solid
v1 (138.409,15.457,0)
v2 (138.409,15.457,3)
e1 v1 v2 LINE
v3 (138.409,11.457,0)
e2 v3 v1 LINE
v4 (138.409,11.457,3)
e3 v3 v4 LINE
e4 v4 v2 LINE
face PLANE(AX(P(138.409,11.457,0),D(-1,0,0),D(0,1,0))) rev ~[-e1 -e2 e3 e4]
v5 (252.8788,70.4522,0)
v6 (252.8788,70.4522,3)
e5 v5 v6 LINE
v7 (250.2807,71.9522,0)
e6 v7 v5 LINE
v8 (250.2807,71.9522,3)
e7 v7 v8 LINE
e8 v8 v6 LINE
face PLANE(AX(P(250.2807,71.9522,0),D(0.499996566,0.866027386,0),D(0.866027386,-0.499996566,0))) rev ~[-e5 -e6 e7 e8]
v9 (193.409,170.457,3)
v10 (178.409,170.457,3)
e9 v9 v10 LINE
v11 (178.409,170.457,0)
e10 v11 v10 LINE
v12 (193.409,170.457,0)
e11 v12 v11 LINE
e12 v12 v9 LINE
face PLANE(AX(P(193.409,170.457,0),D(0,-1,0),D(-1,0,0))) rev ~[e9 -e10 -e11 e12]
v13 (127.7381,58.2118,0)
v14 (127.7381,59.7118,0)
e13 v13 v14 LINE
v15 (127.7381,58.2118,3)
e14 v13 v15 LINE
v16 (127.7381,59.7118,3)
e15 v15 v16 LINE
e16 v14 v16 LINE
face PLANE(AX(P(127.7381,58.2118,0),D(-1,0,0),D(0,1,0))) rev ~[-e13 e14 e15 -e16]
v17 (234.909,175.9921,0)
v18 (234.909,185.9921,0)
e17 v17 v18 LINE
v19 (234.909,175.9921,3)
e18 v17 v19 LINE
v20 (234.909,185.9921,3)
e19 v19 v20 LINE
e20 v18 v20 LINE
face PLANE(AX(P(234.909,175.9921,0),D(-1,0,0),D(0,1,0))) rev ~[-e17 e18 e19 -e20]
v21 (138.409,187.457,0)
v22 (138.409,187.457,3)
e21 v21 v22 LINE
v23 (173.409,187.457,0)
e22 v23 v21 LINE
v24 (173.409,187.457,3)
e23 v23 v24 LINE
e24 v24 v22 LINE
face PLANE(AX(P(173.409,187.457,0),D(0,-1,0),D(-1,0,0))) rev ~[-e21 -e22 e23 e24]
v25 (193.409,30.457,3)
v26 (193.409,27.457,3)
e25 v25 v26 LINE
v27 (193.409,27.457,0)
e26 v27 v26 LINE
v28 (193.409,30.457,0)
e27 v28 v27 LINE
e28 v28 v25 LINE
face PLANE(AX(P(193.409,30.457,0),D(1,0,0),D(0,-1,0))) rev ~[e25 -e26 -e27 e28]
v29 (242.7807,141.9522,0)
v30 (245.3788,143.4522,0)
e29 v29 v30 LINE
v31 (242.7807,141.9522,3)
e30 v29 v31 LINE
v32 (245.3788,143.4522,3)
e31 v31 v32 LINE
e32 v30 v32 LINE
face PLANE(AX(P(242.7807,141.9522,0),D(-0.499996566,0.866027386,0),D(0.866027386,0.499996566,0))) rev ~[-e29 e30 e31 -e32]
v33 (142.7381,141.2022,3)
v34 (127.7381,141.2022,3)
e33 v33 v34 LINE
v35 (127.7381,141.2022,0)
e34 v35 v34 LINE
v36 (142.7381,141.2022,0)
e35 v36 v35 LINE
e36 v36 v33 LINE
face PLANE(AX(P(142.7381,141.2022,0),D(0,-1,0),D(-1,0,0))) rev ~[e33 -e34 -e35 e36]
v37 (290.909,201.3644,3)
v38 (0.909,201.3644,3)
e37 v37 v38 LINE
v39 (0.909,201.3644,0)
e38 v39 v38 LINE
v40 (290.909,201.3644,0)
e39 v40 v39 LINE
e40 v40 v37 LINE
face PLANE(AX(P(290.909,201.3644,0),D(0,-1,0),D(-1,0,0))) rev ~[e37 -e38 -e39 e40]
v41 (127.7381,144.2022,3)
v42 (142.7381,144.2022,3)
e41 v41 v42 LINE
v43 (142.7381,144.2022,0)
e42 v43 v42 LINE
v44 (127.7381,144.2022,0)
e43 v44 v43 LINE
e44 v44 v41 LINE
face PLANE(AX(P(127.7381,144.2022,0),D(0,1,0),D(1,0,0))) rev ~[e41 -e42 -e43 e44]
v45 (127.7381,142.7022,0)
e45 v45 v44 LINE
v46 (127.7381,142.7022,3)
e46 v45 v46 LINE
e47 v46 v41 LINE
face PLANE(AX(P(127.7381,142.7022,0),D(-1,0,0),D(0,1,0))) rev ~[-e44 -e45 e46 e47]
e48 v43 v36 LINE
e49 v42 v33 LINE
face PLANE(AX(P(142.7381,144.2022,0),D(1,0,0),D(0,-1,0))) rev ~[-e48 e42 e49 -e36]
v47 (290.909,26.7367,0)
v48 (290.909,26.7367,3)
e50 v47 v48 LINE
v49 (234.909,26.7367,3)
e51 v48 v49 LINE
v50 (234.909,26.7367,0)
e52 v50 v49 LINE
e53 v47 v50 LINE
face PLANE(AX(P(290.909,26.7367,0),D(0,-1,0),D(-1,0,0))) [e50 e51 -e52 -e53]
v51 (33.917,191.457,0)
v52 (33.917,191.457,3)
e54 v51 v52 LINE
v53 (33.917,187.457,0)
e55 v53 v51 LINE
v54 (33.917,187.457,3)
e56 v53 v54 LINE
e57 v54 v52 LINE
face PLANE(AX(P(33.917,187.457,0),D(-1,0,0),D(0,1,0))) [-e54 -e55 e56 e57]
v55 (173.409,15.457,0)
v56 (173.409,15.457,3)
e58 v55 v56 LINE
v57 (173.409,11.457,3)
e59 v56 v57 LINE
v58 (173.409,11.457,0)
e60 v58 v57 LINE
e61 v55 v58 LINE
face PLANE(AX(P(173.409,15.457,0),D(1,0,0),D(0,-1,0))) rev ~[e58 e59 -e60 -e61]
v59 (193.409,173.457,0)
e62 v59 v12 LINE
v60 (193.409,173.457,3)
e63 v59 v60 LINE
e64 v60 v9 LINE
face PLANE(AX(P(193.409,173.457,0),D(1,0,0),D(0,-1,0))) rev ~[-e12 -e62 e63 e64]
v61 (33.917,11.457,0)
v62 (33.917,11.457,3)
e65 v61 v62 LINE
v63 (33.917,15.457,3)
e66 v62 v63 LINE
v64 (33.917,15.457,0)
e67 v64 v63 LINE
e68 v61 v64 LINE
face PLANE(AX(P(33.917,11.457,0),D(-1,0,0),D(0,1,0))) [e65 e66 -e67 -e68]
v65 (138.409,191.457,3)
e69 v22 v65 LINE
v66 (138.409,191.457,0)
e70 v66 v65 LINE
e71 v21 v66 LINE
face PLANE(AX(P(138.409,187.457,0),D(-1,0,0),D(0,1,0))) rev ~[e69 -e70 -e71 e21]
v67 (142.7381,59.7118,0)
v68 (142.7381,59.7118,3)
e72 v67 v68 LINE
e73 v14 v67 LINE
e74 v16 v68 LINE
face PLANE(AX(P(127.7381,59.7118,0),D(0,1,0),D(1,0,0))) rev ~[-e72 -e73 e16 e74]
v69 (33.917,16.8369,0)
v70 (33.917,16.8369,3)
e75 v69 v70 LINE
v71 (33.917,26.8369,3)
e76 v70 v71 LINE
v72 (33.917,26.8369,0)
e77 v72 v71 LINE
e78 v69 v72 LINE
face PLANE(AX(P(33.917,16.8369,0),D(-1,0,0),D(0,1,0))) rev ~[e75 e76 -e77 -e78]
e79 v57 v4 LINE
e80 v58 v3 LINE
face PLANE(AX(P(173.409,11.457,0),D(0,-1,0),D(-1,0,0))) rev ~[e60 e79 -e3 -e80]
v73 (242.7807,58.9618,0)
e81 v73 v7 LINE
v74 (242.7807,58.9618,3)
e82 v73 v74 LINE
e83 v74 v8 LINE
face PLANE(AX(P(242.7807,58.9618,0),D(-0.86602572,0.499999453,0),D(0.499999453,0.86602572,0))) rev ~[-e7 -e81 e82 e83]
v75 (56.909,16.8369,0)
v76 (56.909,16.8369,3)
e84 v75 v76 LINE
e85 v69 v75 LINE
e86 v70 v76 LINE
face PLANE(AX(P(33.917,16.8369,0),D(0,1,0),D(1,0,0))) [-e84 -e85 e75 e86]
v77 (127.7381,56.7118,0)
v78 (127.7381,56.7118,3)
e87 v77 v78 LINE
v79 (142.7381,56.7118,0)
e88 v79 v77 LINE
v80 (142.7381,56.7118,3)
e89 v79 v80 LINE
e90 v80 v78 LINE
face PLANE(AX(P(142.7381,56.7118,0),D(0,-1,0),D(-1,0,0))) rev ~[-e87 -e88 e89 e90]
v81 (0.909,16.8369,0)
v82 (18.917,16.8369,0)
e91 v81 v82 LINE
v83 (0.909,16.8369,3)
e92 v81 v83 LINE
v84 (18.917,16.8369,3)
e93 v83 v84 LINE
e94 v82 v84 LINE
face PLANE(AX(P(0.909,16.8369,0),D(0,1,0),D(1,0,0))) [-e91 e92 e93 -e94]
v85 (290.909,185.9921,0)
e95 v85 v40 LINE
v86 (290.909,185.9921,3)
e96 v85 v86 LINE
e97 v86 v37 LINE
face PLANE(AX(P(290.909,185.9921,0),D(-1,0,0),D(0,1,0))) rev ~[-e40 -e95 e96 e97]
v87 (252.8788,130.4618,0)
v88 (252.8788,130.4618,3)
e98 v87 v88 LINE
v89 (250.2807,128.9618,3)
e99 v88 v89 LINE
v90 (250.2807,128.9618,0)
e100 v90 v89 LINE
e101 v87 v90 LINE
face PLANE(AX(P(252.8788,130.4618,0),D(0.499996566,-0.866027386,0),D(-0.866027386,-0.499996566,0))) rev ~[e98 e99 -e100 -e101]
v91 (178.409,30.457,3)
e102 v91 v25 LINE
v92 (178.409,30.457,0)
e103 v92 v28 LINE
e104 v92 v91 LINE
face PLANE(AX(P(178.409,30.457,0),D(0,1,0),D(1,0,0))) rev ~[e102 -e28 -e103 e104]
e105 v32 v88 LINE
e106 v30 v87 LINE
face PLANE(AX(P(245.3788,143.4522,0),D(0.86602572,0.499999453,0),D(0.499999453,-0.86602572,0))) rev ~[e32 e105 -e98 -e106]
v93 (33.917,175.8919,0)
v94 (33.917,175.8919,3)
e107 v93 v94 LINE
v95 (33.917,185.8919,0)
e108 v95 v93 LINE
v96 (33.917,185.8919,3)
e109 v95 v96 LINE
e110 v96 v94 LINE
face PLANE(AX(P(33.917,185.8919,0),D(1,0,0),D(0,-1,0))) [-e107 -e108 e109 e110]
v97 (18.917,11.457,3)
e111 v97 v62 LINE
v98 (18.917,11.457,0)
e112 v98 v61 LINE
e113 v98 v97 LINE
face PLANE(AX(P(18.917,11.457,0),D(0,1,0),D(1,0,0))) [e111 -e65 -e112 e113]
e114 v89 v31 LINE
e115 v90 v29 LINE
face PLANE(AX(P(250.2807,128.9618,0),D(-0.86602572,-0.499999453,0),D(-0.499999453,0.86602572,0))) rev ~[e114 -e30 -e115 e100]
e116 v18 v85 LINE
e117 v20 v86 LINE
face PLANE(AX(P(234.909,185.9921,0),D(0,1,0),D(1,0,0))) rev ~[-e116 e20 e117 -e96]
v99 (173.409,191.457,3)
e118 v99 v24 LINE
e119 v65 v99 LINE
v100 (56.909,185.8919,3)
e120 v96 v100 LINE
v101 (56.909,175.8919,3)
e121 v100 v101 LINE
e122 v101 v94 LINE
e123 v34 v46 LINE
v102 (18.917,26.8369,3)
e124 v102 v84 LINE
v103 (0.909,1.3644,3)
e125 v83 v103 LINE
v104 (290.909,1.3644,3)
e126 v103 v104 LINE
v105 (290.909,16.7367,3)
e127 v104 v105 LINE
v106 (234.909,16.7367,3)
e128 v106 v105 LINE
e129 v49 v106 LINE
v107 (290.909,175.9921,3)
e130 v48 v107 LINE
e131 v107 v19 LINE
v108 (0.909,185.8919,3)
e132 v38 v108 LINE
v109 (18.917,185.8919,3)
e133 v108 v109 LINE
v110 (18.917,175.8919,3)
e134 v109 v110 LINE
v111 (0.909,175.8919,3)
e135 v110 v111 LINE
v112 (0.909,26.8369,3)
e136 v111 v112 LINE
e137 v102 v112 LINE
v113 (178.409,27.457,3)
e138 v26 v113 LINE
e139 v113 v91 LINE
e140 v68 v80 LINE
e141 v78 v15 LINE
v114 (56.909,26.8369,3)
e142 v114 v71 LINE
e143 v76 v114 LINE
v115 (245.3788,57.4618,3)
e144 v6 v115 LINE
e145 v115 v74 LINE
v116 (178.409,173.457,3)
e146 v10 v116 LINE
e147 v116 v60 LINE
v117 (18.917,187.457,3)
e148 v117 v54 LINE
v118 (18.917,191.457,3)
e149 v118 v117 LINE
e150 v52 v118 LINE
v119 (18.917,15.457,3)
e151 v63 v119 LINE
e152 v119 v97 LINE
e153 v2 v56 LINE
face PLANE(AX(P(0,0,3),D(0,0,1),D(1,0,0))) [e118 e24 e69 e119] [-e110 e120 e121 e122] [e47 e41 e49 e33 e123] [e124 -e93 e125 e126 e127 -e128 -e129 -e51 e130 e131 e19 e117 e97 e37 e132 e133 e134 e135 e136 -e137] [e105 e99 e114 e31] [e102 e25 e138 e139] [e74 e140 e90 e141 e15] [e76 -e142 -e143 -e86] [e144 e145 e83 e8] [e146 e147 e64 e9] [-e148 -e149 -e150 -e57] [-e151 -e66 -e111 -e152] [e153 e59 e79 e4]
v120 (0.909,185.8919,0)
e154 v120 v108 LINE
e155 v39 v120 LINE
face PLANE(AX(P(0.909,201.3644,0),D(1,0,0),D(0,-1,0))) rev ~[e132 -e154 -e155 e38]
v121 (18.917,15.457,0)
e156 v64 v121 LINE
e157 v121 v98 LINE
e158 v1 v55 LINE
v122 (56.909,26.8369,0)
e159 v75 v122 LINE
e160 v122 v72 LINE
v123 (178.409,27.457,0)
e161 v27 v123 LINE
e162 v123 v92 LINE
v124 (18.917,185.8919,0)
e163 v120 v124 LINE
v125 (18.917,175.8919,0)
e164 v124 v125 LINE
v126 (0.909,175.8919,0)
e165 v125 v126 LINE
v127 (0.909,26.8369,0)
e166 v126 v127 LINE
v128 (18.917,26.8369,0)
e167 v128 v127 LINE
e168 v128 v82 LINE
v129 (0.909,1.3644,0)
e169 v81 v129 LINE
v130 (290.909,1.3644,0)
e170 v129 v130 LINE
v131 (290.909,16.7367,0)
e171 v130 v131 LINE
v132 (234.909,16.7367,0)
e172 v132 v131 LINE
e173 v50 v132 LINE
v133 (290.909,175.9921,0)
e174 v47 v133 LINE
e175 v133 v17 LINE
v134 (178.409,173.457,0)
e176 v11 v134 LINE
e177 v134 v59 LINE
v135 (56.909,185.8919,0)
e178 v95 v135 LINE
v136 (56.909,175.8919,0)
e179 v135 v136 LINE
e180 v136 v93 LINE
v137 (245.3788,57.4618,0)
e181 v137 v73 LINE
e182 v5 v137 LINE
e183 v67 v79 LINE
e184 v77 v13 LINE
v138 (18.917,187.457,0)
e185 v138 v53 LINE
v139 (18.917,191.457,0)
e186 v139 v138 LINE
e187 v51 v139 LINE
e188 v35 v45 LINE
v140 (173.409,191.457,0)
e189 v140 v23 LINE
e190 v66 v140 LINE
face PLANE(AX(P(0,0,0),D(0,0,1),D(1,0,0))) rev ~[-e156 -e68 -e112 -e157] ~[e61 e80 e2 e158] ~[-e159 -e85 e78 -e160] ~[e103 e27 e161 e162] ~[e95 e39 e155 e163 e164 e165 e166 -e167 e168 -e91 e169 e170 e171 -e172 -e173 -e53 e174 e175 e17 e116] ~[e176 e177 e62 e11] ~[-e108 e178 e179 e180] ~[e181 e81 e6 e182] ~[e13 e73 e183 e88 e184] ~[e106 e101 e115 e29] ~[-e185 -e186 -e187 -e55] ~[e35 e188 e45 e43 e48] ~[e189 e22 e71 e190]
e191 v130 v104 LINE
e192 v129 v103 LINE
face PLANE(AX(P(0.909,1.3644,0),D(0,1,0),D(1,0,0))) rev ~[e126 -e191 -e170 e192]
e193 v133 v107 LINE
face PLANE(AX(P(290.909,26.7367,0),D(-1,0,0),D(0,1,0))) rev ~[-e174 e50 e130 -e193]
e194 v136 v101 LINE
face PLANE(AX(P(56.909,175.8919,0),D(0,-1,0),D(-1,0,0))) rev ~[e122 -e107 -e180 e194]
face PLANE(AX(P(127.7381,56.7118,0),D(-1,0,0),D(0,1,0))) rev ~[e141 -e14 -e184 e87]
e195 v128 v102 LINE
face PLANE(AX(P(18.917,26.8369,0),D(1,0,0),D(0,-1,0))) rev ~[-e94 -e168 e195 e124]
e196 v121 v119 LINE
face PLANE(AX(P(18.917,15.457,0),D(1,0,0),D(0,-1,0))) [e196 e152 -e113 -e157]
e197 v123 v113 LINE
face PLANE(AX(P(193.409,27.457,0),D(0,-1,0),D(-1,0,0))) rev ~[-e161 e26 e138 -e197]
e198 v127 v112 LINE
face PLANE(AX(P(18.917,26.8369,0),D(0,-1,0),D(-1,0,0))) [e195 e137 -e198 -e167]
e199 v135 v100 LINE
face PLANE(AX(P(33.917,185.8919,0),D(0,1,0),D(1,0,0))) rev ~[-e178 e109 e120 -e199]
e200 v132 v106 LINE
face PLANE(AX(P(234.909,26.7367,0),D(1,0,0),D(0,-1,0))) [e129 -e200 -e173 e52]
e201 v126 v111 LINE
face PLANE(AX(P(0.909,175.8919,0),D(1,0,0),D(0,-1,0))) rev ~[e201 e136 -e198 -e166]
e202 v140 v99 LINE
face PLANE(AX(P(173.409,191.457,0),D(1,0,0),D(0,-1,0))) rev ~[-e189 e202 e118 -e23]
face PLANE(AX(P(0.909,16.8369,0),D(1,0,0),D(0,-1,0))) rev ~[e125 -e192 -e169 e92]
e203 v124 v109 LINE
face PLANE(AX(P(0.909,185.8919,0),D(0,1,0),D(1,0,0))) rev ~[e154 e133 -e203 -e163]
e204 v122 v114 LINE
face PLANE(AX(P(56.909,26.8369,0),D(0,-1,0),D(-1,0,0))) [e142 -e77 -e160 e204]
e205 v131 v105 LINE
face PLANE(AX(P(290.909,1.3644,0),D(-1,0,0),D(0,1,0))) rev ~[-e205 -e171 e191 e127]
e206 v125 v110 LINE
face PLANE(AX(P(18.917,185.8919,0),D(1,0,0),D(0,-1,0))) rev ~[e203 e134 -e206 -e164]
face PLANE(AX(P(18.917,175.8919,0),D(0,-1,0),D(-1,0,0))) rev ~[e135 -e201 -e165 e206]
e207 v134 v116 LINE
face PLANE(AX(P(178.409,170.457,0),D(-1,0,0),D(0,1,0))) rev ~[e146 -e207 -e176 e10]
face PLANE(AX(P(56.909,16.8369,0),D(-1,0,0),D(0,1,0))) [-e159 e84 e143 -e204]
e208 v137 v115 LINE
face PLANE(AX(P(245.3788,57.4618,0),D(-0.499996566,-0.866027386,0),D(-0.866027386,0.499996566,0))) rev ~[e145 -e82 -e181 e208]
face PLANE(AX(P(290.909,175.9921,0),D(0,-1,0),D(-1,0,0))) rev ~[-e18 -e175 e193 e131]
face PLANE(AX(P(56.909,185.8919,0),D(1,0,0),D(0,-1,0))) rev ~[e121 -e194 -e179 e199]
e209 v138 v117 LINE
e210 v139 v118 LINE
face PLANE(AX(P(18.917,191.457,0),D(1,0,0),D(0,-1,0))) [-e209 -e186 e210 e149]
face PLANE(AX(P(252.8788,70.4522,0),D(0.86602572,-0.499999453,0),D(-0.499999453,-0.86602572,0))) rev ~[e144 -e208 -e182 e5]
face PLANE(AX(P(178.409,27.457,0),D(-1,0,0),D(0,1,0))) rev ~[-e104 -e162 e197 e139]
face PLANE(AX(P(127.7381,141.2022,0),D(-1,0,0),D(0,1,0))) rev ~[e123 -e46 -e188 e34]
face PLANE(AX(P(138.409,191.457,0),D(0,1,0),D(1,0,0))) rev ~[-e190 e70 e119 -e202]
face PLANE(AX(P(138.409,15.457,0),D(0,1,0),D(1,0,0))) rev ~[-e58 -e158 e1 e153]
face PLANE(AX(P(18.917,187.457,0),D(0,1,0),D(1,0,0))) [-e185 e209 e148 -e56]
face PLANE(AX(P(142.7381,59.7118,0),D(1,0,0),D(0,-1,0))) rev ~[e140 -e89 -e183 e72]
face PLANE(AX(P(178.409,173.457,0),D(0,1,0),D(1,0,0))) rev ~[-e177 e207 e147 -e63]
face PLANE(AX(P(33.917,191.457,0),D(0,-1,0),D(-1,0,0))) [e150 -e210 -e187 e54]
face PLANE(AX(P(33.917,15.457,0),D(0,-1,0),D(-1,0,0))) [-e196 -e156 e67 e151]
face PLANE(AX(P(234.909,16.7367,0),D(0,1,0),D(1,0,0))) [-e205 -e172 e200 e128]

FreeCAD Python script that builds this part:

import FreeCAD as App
import Part
import Sketcher
from FreeCAD import Vector
Q = App.Units.Quantity


def add_polygon(sketch, points):
    """Adds a closed chain of lines whose ends are joined by coincident constraints."""
    first, n = sketch.GeometryCount, len(points)
    for a, b in zip(points, points[1:] + points[:1]):
        sketch.addGeometry(Part.LineSegment(App.Vector(*a, 0), App.Vector(*b, 0)), False)
    for i in range(n):
        sketch.addConstraint(Sketcher.Constraint("Coincident", first + i, 2, first + (i + 1) % n, 1))

doc = App.newDocument("Part")
params = doc.addObject("Spreadsheet::Sheet", "Params")
for row, (alias, value) in enumerate([
    ("sketch1_width", "15 mm"),
    ("sketch1_height", "3 mm"),
    ("sketch1_length", "3 mm"),
    ("sketch1_length2", "15 mm"),
    ("sketch1_width2", "290 mm"),
    ("pad1_length", "3 mm"),
], start=1):
    params.set(f"A{row}", alias)
    params.set(f"B{row}", "=" + value)
    params.setAlias(f"B{row}", alias)

body = doc.addObject("PartDesign::Body", "Body")

sketch1 = body.newObject("Sketcher::SketchObject", "Sketch")
sketch1.AttachmentSupport = (doc.getObject("XY_Plane"), [""])
sketch1.MapMode = "FlatFace"
add_polygon(sketch1, [(18.917, 16.8369), (0.909, 16.8369), (0.909, 1.3644), (290.909, 1.3644), (290.909, 16.7367), (234.909, 16.7367), (234.909, 26.7367), (290.909, 26.7367), (290.909, 175.9921), (234.909, 175.9921), (234.909, 185.9921), (290.909, 185.9921), (290.909, 201.3644), (0.909, 201.3644), (0.909, 185.8919), (18.917, 185.8919), (18.917, 175.8919), (0.909, 175.8919), (0.909, 26.8369), (18.917, 26.8369)])
add_polygon(sketch1, [(33.917, 15.457), (33.917, 11.457), (18.917, 11.457), (18.917, 15.457)])
add_polygon(sketch1, [(56.909, 26.8369), (56.909, 16.8369), (33.917, 16.8369), (33.917, 26.8369)])
add_polygon(sketch1, [(127.7381, 56.7118), (127.7381, 59.7118), (142.7381, 59.7118), (142.7381, 56.7118)])
add_polygon(sketch1, [(173.409, 15.457), (173.409, 11.457), (138.409, 11.457), (138.409, 15.457)])
add_polygon(sketch1, [(193.409, 30.457), (193.409, 27.457), (178.409, 27.457), (178.409, 30.457)])
add_polygon(sketch1, [(250.2807, 71.9522), (252.8788, 70.4522), (245.3788, 57.4618), (242.7807, 58.9618)])
add_polygon(sketch1, [(127.7381, 141.2022), (127.7381, 144.2022), (142.7381, 144.2022), (142.7381, 141.2022)])
add_polygon(sketch1, [(33.917, 187.457), (18.917, 187.457), (18.917, 191.457), (33.917, 191.457)])
add_polygon(sketch1, [(33.917, 185.8919), (56.909, 185.8919), (56.909, 175.8919), (33.917, 175.8919)])
add_polygon(sketch1, [(250.2807, 128.9618), (242.7807, 141.9522), (245.3788, 143.4522), (252.8788, 130.4618)])
add_polygon(sketch1, [(178.409, 170.457), (178.409, 173.457), (193.409, 173.457), (193.409, 170.457)])
add_polygon(sketch1, [(173.409, 187.457), (138.409, 187.457), (138.409, 191.457), (173.409, 191.457)])
sketch1.addConstraint([
    Sketcher.Constraint("Horizontal", 0),
    Sketcher.Constraint("Vertical", 1),
    Sketcher.Constraint("Horizontal", 2),
    Sketcher.Constraint("Vertical", 3),
    Sketcher.Constraint("Horizontal", 4),
    Sketcher.Constraint("Vertical", 5),
    Sketcher.Constraint("Horizontal", 6),
    Sketcher.Constraint("Vertical", 7),
    Sketcher.Constraint("Horizontal", 8),
    Sketcher.Constraint("Vertical", 9),
    Sketcher.Constraint("Horizontal", 10),
    Sketcher.Constraint("Vertical", 11),
    Sketcher.Constraint("Horizontal", 12),
    Sketcher.Constraint("Vertical", 13),
    Sketcher.Constraint("Horizontal", 14),
    Sketcher.Constraint("Vertical", 15),
    Sketcher.Constraint("Horizontal", 16),
    Sketcher.Constraint("Vertical", 17),
    Sketcher.Constraint("Horizontal", 18),
    Sketcher.Constraint("Vertical", 19),
    Sketcher.Constraint("Vertical", 20),
    Sketcher.Constraint("Horizontal", 21),
    Sketcher.Constraint("Vertical", 22),
    Sketcher.Constraint("Horizontal", 23),
    Sketcher.Constraint("Vertical", 24),
    Sketcher.Constraint("Horizontal", 25),
    Sketcher.Constraint("Vertical", 26),
    Sketcher.Constraint("Horizontal", 27),
    Sketcher.Constraint("Vertical", 28),
    Sketcher.Constraint("Horizontal", 29),
    Sketcher.Constraint("Vertical", 30),
    Sketcher.Constraint("Horizontal", 31),
    Sketcher.Constraint("Vertical", 32),
    Sketcher.Constraint("Horizontal", 33),
    Sketcher.Constraint("Vertical", 34),
    Sketcher.Constraint("Horizontal", 35),
    Sketcher.Constraint("Vertical", 36),
    Sketcher.Constraint("Horizontal", 37),
    Sketcher.Constraint("Vertical", 38),
    Sketcher.Constraint("Horizontal", 39),
    Sketcher.Constraint("Vertical", 44),
    Sketcher.Constraint("Horizontal", 45),
    Sketcher.Constraint("Vertical", 46),
    Sketcher.Constraint("Horizontal", 47),
    Sketcher.Constraint("Horizontal", 48),
    Sketcher.Constraint("Vertical", 49),
    Sketcher.Constraint("Horizontal", 50),
    Sketcher.Constraint("Vertical", 51),
    Sketcher.Constraint("Horizontal", 52),
    Sketcher.Constraint("Vertical", 53),
    Sketcher.Constraint("Horizontal", 54),
    Sketcher.Constraint("Vertical", 55),
    Sketcher.Constraint("Vertical", 60),
    Sketcher.Constraint("Horizontal", 61),
    Sketcher.Constraint("Vertical", 62),
    Sketcher.Constraint("Horizontal", 63),
    Sketcher.Constraint("Horizontal", 64),
    Sketcher.Constraint("Vertical", 65),
    Sketcher.Constraint("Horizontal", 66),
    Sketcher.Constraint("Vertical", 67),
    Sketcher.Constraint("Perpendicular", 40, 41),
    Sketcher.Constraint("Perpendicular", 41, 42),
    Sketcher.Constraint("Perpendicular", 42, 43),
    Sketcher.Constraint("Perpendicular", 56, 57),
    Sketcher.Constraint("Perpendicular", 57, 58),
    Sketcher.Constraint("Perpendicular", 58, 59),
    Sketcher.Constraint("Horizontal", 19, 2, 24, 2),
    Sketcher.Constraint("Horizontal", 18, 2, 26, 2),
    Sketcher.Constraint("Horizontal", 21, 2, 32, 2),
    Sketcher.Constraint("Horizontal", 23, 2, 34, 2),
    Sketcher.Constraint("Horizontal", 14, 2, 52, 2),
    Sketcher.Constraint("Horizontal", 16, 2, 53, 2),
    Sketcher.Constraint("Horizontal", 51, 2, 64, 2),
    Sketcher.Constraint("Horizontal", 50, 2, 65, 2),
    Sketcher.Constraint("Vertical", 3, 2, 6, 2),
    Sketcher.Constraint("Vertical", 5, 2, 8, 2),
    Sketcher.Constraint("Vertical", 7, 2, 10, 2),
    Sketcher.Constraint("Vertical", 1, 2, 12, 2),
    Sketcher.Constraint("Vertical", 13, 2, 16, 2),
    Sketcher.Constraint("Vertical", 15, 2, 18, 2),
    Sketcher.Constraint("Vertical", 19, 2, 21, 2),
    Sketcher.Constraint("Vertical", 23, 2, 25, 2),
    Sketcher.Constraint("Vertical", 31, 2, 44, 2),
    Sketcher.Constraint("Vertical", 30, 2, 45, 2),
    Sketcher.Constraint("Vertical", 22, 2, 48, 2),
    Sketcher.Constraint("Vertical", 26, 2, 50, 2),
    Sketcher.Constraint("Vertical", 27, 2, 52, 2),
    Sketcher.Constraint("Vertical", 51, 2, 54, 2),
    Sketcher.Constraint("Vertical", 42, 2, 56, 2),
    Sketcher.Constraint("Vertical", 41, 2, 57, 2),
    Sketcher.Constraint("Vertical", 40, 2, 58, 2),
    Sketcher.Constraint("Vertical", 38, 2, 60, 2),
    Sketcher.Constraint("Vertical", 39, 2, 61, 2),
    Sketcher.Constraint("Vertical", 34, 2, 64, 2),
    Sketcher.Constraint("Vertical", 35, 2, 66, 2),
    Sketcher.Constraint("Equal", 23, 29),
    Sketcher.Constraint("Equal", 31, 37),
    Sketcher.Constraint("Equal", 5, 9),
    Sketcher.Constraint("Equal", 3, 11),
    Sketcher.Constraint("Equal", 1, 13),
    Sketcher.Constraint("Equal", 9, 15),
    Sketcher.Constraint("Equal", 15, 19),
    Sketcher.Constraint("Equal", 30, 36),
    Sketcher.Constraint("Equal", 38, 44),
    Sketcher.Constraint("Equal", 34, 49),
    Sketcher.Constraint("Equal", 46, 60),
    Sketcher.Constraint("Equal", 43, 56),
    Sketcher.Constraint("DistanceX", 21, 2, 21, 1, 15.0),
    Sketcher.Constraint("DistanceY", 28, 1, 28, 2, 3.0),
    Sketcher.Constraint("Distance", 40, 3.0),
    Sketcher.Constraint("Distance", 41, 15.0),
    Sketcher.Constraint("DistanceX", 2, 1, 2, 2, 290.0),
    Sketcher.Constraint("DistanceX", 4, 2, 4, 1, 56.0),
    Sketcher.Constraint("DistanceX", 33, 2, 33, 1, 35.0),
    Sketcher.Constraint("DistanceY", 5, 1, 5, 2, 10.0),
    Sketcher.Constraint("DistanceY", 20, 2, 20, 1, 4.0),
    Sketcher.Constraint("Angle", 40, Q("-29.9998 deg")),
    Sketcher.Constraint("DistanceX", 0, 2, 0, 1, 18.008),
    Sketcher.Constraint("DistanceX", 25, 2, 25, 1, 22.992),
    Sketcher.Constraint("DistanceY", 17, 2, 17, 1, 149.055),
    Sketcher.Constraint("DistanceY", 1, 2, 1, 1, 15.4725),
    Sketcher.Constraint("DistanceY", 3, 1, 3, 2, 15.3723),
    Sketcher.Constraint("DistanceX", -1, 1, 0, 2, 0.909),
    Sketcher.Constraint("DistanceY", -1, 1, 0, 2, 16.837),
    Sketcher.Constraint("DistanceY", -1, 1, 20, 2, 11.457),
    Sketcher.Constraint("DistanceX", -1, 1, 28, 2, 127.738),
    Sketcher.Constraint("DistanceX", -1, 1, 32, 2, 173.409),
    Sketcher.Constraint("DistanceX", -1, 1, 36, 2, 193.409),
    Sketcher.Constraint("DistanceY", -1, 1, 36, 2, 27.457),
    Sketcher.Constraint("DistanceY", -1, 1, 48, 2, 187.457),
    Sketcher.Constraint("DistanceY", -1, 1, 60, 2, 173.457),
    Sketcher.Constraint("DistanceY", -1, 1, 28, 2, 59.7118),
    Sketcher.Constraint("DistanceX", -1, 1, 40, 2, 252.8788),
    Sketcher.Constraint("DistanceY", -1, 1, 40, 2, 70.4522),
    Sketcher.Constraint("DistanceY", -1, 1, 44, 2, 144.2022),
    Sketcher.Constraint("DistanceY", -1, 1, 56, 2, 141.9522),
])
sketch1.setExpression("Constraints[175]", "Params.sketch1_width")
sketch1.setExpression("Constraints[176]", "Params.sketch1_height")
sketch1.setExpression("Constraints[177]", "Params.sketch1_length")
sketch1.setExpression("Constraints[178]", "Params.sketch1_length2")
sketch1.setExpression("Constraints[179]", "Params.sketch1_width2")
pad1 = body.newObject("PartDesign::Pad", "Pad")
pad1.Profile = sketch1
pad1.setExpression("Length", "Params.pad1_length")

doc.recompute()
